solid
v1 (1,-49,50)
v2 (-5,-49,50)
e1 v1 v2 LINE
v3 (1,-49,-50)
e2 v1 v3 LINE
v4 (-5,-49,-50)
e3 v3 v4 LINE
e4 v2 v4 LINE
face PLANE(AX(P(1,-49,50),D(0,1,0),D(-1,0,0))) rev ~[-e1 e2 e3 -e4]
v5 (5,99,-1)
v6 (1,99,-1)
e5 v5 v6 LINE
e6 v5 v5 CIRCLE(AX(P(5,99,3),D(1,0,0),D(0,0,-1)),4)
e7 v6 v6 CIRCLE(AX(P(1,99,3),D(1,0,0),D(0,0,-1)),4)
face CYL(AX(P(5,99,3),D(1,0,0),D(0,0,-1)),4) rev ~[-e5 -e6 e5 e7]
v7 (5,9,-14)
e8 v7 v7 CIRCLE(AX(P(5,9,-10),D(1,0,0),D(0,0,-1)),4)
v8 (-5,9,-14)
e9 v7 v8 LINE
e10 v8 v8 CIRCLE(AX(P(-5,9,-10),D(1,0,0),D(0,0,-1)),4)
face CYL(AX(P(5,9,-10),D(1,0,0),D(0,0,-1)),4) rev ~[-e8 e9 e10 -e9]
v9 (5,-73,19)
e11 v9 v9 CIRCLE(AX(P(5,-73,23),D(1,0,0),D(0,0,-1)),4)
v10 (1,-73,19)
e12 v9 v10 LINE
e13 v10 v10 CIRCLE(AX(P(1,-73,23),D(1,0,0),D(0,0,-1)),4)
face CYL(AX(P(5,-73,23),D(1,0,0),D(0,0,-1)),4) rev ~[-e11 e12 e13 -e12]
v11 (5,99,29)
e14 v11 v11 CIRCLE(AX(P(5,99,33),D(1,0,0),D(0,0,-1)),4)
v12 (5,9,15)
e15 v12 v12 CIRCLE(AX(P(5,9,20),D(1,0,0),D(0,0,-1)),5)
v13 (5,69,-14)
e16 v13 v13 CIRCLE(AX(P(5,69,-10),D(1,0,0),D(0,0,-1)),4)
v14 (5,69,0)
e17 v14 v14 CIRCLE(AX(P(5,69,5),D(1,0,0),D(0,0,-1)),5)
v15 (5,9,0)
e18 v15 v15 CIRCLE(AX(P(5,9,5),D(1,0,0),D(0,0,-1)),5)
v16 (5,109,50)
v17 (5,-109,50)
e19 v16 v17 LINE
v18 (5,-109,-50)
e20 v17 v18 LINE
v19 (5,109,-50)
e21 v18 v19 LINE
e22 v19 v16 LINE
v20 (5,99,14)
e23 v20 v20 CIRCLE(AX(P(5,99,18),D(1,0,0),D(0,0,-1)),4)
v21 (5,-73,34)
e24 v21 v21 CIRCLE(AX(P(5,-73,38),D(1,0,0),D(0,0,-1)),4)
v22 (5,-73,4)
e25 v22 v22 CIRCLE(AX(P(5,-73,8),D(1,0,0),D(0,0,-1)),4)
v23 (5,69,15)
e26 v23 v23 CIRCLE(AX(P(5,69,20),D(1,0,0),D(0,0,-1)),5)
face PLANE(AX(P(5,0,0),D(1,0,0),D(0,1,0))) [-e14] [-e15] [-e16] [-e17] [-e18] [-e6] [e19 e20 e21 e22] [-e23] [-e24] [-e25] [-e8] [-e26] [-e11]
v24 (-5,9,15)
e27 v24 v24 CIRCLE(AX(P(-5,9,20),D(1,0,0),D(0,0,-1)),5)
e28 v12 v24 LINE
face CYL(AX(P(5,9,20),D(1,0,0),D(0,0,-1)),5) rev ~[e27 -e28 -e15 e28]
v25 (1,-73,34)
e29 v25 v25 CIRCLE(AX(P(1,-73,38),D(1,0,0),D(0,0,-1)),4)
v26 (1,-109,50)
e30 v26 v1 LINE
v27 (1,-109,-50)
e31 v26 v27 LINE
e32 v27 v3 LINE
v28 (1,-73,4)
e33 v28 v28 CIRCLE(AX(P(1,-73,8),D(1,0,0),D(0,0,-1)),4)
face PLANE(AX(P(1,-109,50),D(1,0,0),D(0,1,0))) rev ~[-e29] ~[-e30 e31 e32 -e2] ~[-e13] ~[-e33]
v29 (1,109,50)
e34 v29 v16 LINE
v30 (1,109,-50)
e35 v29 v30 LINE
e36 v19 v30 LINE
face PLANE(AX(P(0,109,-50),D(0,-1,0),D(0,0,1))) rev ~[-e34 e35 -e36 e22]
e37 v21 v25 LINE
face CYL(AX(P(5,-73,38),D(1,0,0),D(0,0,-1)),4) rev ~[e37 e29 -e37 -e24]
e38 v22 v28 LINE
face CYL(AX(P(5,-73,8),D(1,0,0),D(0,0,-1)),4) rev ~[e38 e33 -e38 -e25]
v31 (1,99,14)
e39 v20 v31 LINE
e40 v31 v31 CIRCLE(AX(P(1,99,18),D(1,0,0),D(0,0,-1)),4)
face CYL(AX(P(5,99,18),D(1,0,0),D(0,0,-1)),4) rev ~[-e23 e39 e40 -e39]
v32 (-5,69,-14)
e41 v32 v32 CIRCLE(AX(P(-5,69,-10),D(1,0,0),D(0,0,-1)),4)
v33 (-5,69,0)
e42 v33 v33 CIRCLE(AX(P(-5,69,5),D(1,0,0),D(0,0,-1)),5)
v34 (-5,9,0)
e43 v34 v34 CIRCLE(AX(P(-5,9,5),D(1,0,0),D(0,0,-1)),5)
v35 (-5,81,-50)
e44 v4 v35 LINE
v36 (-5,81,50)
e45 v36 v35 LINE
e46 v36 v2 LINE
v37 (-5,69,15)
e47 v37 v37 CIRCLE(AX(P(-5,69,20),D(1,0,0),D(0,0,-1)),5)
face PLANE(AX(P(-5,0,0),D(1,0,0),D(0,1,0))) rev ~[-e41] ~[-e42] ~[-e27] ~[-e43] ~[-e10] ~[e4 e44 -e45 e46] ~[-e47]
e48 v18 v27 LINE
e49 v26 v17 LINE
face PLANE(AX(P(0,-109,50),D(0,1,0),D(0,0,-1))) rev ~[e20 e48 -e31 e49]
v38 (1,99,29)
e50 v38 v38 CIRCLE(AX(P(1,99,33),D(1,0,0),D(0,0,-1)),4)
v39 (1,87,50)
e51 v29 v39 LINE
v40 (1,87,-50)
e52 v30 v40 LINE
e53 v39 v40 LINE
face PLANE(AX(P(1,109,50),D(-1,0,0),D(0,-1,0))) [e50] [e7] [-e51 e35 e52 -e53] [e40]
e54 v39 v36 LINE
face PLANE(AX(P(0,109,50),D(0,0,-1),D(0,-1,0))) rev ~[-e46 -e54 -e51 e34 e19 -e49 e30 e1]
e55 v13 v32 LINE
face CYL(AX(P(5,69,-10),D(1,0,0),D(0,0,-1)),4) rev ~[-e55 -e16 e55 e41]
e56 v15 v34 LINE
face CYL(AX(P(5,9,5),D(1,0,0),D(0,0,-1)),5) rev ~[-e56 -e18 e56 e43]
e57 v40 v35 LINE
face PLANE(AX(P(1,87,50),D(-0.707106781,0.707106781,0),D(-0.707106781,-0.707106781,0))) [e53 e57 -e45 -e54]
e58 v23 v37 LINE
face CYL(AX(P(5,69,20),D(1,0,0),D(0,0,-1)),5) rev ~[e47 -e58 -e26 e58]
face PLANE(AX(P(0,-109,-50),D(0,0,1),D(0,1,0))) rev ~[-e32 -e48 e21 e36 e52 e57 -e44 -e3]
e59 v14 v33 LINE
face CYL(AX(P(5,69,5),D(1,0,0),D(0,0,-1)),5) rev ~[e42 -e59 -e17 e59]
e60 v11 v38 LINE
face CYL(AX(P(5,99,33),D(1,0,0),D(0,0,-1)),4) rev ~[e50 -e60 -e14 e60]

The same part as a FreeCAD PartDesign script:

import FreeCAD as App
import Part
import Sketcher
Q = App.Units.Quantity

doc = App.newDocument("Part")
body = doc.addObject("PartDesign::Body", "Body")

sketch1 = doc.addObject("Sketcher::SketchObject", "Sketch")
body.addObject(sketch1)
sketch1.AttachmentSupport = (doc.YZ_Plane, [""])
sketch1.MapMode = "FlatFace"
sketch1.addGeometry([
    Part.LineSegment(App.Vector(109, -50, 0), App.Vector(109, 50, 0)),
    Part.LineSegment(App.Vector(109, 50, 0), App.Vector(-109, 50, 0)),
    Part.LineSegment(App.Vector(-109, 50, 0), App.Vector(-109, -50, 0)),
    Part.LineSegment(App.Vector(-109, -50, 0), App.Vector(109, -50, 0)),
], False)
sketch1.addConstraint([
    Sketcher.Constraint("Coincident", 0, 2, 1, 1),
    Sketcher.Constraint("Coincident", 1, 2, 2, 1),
    Sketcher.Constraint("Coincident", 2, 2, 3, 1),
    Sketcher.Constraint("Coincident", 3, 2, 0, 1),
    Sketcher.Constraint("Vertical", 0),
    Sketcher.Constraint("Horizontal", 1),
    Sketcher.Constraint("Vertical", 2),
    Sketcher.Constraint("Horizontal", 3),
    Sketcher.Constraint("Symmetric", 0, 2, 2, 2, -1, 1),
    Sketcher.Constraint("DistanceX", 1, 2, 1, 1, Q("218 mm")),
    Sketcher.Constraint("DistanceY", 0, 1, 0, 2, Q("100 mm")),
])
pad1 = doc.addObject("PartDesign::Pad", "Pad")
body.addObject(pad1)
pad1.Profile = sketch1
pad1.Length = 10
pad1.Midplane = True

sketch2 = doc.addObject("Sketcher::SketchObject", "Sketch001")
body.addObject(sketch2)
sketch2.AttachmentSupport = (doc.XY_Plane, [""])
sketch2.MapMode = "FlatFace"
sketch2.AttachmentOffset = App.Placement(App.Vector(0, 0, 50), App.Rotation())
sketch2.addGeometry([
    Part.LineSegment(App.Vector(1, -49, 0), App.Vector(-5, -49, 0)),
    Part.LineSegment(App.Vector(-5, -49, 0), App.Vector(-5, -109, 0)),
    Part.LineSegment(App.Vector(-5, -109, 0), App.Vector(1, -109, 0)),
    Part.LineSegment(App.Vector(1, -109, 0), App.Vector(1, -49, 0)),
    Part.LineSegment(App.Vector(1, 109, 0), App.Vector(-5, 109, 0)),
    Part.LineSegment(App.Vector(-5, 109, 0), App.Vector(-5, 81, 0)),
    Part.LineSegment(App.Vector(-5, 81, 0), App.Vector(1, 87, 0)),
    Part.LineSegment(App.Vector(1, 87, 0), App.Vector(1, 109, 0)),
], False)
sketch2.addConstraint([
    Sketcher.Constraint("Coincident", 0, 2, 1, 1),
    Sketcher.Constraint("Coincident", 1, 2, 2, 1),
    Sketcher.Constraint("Coincident", 2, 2, 3, 1),
    Sketcher.Constraint("Coincident", 3, 2, 0, 1),
    Sketcher.Constraint("Coincident", 4, 2, 5, 1),
    Sketcher.Constraint("Coincident", 5, 2, 6, 1),
    Sketcher.Constraint("Coincident", 6, 2, 7, 1),
    Sketcher.Constraint("Coincident", 7, 2, 4, 1),
    Sketcher.Constraint("Horizontal", 0),
    Sketcher.Constraint("Vertical", 1),
    Sketcher.Constraint("Horizontal", 2),
    Sketcher.Constraint("Vertical", 3),
    Sketcher.Constraint("Horizontal", 4),
    Sketcher.Constraint("Vertical", 5),
    Sketcher.Constraint("Vertical", 7),
    Sketcher.Constraint("Symmetric", 1, 2, 4, 2, -1),
    Sketcher.Constraint("Vertical", 3, 2, 6, 2),
    Sketcher.Constraint("DistanceY", 1, 2, 1, 1, Q("60 mm")),
    Sketcher.Constraint("DistanceY", 7, 1, 7, 2, Q("22 mm")),
    Sketcher.Constraint("DistanceX", 0, 2, 0, 1, Q("6 mm")),
    Sketcher.Constraint("DistanceY", 5, 2, 5, 1, Q("28 mm")),
    Sketcher.Constraint("DistanceX", 0, 2, -1, 1, Q("5 mm")),
    Sketcher.Constraint("DistanceY", 0, 2, -1, 1, Q("49 mm")),
])
pocket1 = doc.addObject("PartDesign::Pocket", "Pocket")
body.addObject(pocket1)
pocket1.Profile = sketch2
pocket1.Type = "ThroughAll"

sketch3 = doc.addObject("Sketcher::SketchObject", "Sketch002")
body.addObject(sketch3)
sketch3.AttachmentSupport = (doc.YZ_Plane, [""])
sketch3.MapMode = "FlatFace"
sketch3.AttachmentOffset = App.Placement(App.Vector(0, 0, 5), App.Rotation())
sketch3.addGeometry([
    Part.Circle(App.Vector(-73, 38, 0), App.Vector(0, 0, 1), 4),
    Part.Circle(App.Vector(-73, 23, 0), App.Vector(0, 0, 1), 4),
    Part.Circle(App.Vector(-73, 8, 0), App.Vector(0, 0, 1), 4),
    Part.Circle(App.Vector(99, 33, 0), App.Vector(0, 0, 1), 4),
    Part.Circle(App.Vector(99, 18, 0), App.Vector(0, 0, 1), 4),
    Part.Circle(App.Vector(99, 3, 0), App.Vector(0, 0, 1), 4),
    Part.Circle(App.Vector(69, 20, 0), App.Vector(0, 0, 1), 5),
    Part.Circle(App.Vector(69, 5, 0), App.Vector(0, 0, 1), 5),
    Part.Circle(App.Vector(69, -10, 0), App.Vector(0, 0, 1), 4),
    Part.Circle(App.Vector(9, 20, 0), App.Vector(0, 0, 1), 5),
    Part.Circle(App.Vector(9, 5, 0), App.Vector(0, 0, 1), 5),
    Part.Circle(App.Vector(9, -10, 0), App.Vector(0, 0, 1), 4),
], False)
sketch3.addConstraint([
    Sketcher.Constraint("Equal", 0, 1),
    Sketcher.Constraint("Equal", 1, 2),
    Sketcher.Constraint("Equal", 2, 3),
    Sketcher.Constraint("Equal", 3, 4),
    Sketcher.Constraint("Equal", 4, 5),
    Sketcher.Constraint("Equal", 6, 7),
    Sketcher.Constraint("Equal", 5, 8),
    Sketcher.Constraint("Equal", 7, 9),
    Sketcher.Constraint("Equal", 9, 10),
    Sketcher.Constraint("Equal", 8, 11),
    Sketcher.Constraint("Horizontal", 6, 3, 9, 3),
    Sketcher.Constraint("Horizontal", 7, 3, 10, 3),
    Sketcher.Constraint("Horizontal", 8, 3, 11, 3),
    Sketcher.Constraint("Vertical", 0, 3, 1, 3),
    Sketcher.Constraint("Vertical", 1, 3, 2, 3),
    Sketcher.Constraint("Vertical", 3, 3, 4, 3),
    Sketcher.Constraint("Vertical", 4, 3, 5, 3),
    Sketcher.Constraint("Vertical", 6, 3, 7, 3),
    Sketcher.Constraint("Vertical", 7, 3, 8, 3),
    Sketcher.Constraint("Vertical", 9, 3, 10, 3),
    Sketcher.Constraint("Vertical", 10, 3, 11, 3),
    Sketcher.Constraint("Diameter", 0, Q("8 mm")),
    Sketcher.Constraint("Diameter", 6, Q("10 mm")),
    Sketcher.Constraint("DistanceY", -1, 1, 2, 3, Q("8 mm")),
    Sketcher.Constraint("DistanceY", 8, 3, -1, 1, Q("10 mm")),
    Sketcher.Constraint("DistanceY", 1, 3, 0, 3, Q("15 mm")),
    Sketcher.Constraint("DistanceY", 2, 3, 1, 3, Q("15 mm")),
    Sketcher.Constraint("DistanceY", 1, 3, 3, 3, Q("10 mm")),
    Sketcher.Constraint("DistanceY", 4, 3, 3, 3, Q("15 mm")),
    Sketcher.Constraint("DistanceY", 5, 3, 4, 3, Q("15 mm")),
    Sketcher.Constraint("DistanceX", 6, 3, 4, 3, Q("30 mm")),
    Sketcher.Constraint("DistanceY", 5, 3, 6, 3, Q("17 mm")),
    Sketcher.Constraint("DistanceY", 7, 3, 6, 3, Q("15 mm")),
    Sketcher.Constraint("DistanceX", 9, 3, 6, 3, Q("60 mm")),
    Sketcher.Constraint("DistanceX", 0, 3, -1, 1, Q("73 mm")),
    Sketcher.Constraint("DistanceX", -1, 1, 3, 3, Q("99 mm")),
])
pocket2 = doc.addObject("PartDesign::Pocket", "Pocket001")
body.addObject(pocket2)
pocket2.Profile = sketch3
pocket2.Type = "ThroughAll"

doc.recompute()
